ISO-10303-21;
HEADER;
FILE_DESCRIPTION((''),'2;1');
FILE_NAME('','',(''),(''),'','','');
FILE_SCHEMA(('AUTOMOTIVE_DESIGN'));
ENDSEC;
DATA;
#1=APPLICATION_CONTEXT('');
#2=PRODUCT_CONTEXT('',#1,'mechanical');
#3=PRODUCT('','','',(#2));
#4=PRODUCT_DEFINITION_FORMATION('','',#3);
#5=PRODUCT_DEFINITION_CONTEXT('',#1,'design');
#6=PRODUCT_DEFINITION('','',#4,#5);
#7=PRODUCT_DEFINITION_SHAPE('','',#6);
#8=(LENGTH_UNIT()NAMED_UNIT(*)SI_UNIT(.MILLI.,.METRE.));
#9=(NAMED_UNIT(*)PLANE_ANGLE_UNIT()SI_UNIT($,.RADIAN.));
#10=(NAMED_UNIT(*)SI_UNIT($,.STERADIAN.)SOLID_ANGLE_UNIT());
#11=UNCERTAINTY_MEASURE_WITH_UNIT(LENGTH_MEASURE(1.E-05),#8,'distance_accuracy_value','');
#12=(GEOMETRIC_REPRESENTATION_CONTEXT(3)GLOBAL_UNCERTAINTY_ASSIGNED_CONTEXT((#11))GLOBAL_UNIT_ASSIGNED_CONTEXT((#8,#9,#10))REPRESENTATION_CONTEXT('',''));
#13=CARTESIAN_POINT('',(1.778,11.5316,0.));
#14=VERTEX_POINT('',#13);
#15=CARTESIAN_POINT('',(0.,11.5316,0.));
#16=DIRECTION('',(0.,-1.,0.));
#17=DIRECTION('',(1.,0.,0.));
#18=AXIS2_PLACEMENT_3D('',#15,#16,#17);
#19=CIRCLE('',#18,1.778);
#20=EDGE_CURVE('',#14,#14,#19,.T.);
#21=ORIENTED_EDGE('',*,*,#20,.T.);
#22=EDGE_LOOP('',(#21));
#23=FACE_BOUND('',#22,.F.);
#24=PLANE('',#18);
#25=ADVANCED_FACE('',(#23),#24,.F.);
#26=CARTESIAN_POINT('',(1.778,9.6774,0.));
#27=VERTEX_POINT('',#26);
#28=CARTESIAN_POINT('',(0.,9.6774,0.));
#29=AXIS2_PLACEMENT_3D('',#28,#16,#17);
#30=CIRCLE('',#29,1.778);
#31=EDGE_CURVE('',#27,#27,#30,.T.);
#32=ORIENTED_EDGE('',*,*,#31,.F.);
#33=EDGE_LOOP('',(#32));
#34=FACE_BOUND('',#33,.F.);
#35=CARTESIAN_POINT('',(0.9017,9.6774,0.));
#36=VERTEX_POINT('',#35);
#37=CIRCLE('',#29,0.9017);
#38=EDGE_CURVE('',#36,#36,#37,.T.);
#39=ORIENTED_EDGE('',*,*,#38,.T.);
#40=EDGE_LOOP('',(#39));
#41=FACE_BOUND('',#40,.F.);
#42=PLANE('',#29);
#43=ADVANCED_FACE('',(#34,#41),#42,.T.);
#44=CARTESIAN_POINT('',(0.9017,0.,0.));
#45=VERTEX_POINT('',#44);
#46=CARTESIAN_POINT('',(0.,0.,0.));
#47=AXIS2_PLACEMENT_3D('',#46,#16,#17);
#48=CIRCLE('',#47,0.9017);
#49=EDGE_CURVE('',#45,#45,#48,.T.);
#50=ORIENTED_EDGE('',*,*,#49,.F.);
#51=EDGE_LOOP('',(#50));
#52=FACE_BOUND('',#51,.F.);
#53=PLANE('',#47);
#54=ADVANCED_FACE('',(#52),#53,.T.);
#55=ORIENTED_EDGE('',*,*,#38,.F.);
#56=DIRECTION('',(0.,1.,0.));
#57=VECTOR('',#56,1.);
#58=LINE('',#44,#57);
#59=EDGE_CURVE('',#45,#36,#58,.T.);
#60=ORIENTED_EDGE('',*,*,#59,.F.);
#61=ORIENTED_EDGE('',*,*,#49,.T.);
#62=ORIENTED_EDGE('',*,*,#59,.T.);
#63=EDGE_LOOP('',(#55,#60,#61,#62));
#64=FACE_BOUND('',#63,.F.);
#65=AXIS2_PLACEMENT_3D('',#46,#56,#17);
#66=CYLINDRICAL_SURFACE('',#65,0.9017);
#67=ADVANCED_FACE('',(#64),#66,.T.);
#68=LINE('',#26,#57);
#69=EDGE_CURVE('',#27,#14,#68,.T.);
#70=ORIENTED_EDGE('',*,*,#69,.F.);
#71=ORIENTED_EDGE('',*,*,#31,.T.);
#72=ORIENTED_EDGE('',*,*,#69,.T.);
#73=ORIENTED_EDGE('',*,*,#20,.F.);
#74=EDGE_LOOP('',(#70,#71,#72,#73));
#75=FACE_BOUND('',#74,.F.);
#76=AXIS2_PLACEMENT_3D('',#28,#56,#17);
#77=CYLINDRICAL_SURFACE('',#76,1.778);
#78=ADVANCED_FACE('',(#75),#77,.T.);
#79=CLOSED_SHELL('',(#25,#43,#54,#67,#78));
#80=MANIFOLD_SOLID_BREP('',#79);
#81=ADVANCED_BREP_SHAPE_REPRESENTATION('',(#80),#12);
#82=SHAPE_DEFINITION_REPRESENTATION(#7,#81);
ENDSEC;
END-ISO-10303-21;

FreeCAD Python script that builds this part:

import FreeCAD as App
import Part
import Sketcher

V = App.Vector
Q = App.Units.Quantity

doc = App.newDocument("Part")
body = doc.addObject("PartDesign::Body", "Body")

# Sketch on XY plane
sketch1 = body.newObject("Sketcher::SketchObject", "Sketch")
sketch1.AttachmentSupport = (doc.getObject("XY_Plane"), [""])
sketch1.MapMode = "FlatFace"
sketch1.addGeometry([
    Part.LineSegment(V(0, 11.5, 0), V(0, 0, 0)),  # 0
    Part.LineSegment(V(0, 0, 0), V(0.9, 0, 0)),  # 1
    Part.LineSegment(V(0.9, 0, 0), V(0.9, 9.7, 0)),  # 2
    Part.LineSegment(V(0.9, 9.7, 0), V(1.8, 9.7, 0)),  # 3
    Part.LineSegment(V(1.8, 9.7, 0), V(1.8, 11.5, 0)),  # 4
    Part.LineSegment(V(1.8, 11.5, 0), V(0, 11.5, 0)),  # 5
], False)
sketch1.addConstraint([
    Sketcher.Constraint("Coincident", 0, 2, 1, 1),
    Sketcher.Constraint("Coincident", 1, 2, 2, 1),
    Sketcher.Constraint("Coincident", 2, 2, 3, 1),
    Sketcher.Constraint("Coincident", 3, 2, 4, 1),
    Sketcher.Constraint("Coincident", 4, 2, 5, 1),
    Sketcher.Constraint("Coincident", 5, 2, 0, 1),
    Sketcher.Constraint("Vertical", 0),
    Sketcher.Constraint("Horizontal", 1),
    Sketcher.Constraint("Vertical", 2),
    Sketcher.Constraint("Horizontal", 3),
    Sketcher.Constraint("Vertical", 4),
    Sketcher.Constraint("Horizontal", 5),
    Sketcher.Constraint("Coincident", 0, 2, -1, 1),
    Sketcher.Constraint("DistanceY", 2, 1, 2, 2, Q("0.381 in")),
    Sketcher.Constraint("DistanceY", 4, 1, 4, 2, Q("0.073 in")),
    Sketcher.Constraint("DistanceX", 5, 2, 5, 1, Q("0.07 in")),
    Sketcher.Constraint("DistanceX", 1, 1, 1, 2, Q("0.0355 in")),
])
revolution = body.newObject("PartDesign::Revolution", "Revolution")
revolution.Profile = sketch1
revolution.ReferenceAxis = (sketch1, ["V_Axis"])
revolution.Angle = 360

doc.recompute()
